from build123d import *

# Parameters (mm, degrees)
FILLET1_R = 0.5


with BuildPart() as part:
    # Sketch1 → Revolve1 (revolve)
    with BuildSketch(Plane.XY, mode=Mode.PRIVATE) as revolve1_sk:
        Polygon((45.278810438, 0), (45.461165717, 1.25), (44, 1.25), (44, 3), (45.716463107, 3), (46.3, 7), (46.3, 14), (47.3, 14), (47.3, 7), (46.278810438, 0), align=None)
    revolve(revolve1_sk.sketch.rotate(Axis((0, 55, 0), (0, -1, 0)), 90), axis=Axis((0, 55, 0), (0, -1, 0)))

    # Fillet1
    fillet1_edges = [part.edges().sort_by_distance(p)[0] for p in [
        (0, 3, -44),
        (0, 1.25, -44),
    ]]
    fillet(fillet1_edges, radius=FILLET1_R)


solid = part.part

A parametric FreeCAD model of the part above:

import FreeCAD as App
import Part
import Sketcher
Q = App.Units.Quantity


def edges_at(feature, points):
    """Names of the edges that pass closest to the given points."""
    edges = feature.Shape.Edges
    near = lambda p: min(range(len(edges)), key=lambda i: edges[i].distToShape(Part.Vertex(*p))[0])
    return sorted({f"Edge{near(p) + 1}" for p in points})

doc = App.newDocument("Part")
body = doc.addObject("PartDesign::Body", "Body")

sketch1 = body.newObject("Sketcher::SketchObject", "Sketch")
sketch1.AttachmentSupport = (doc.getObject("XY_Plane"), [""])
sketch1.MapMode = "FlatFace"
sketch1.addGeometry([
    Part.LineSegment(App.Vector(45.5, 1.2, 0), App.Vector(45.3, 0, 0)),
    Part.LineSegment(App.Vector(45.3, 0, 0), App.Vector(46.3, 0, 0)),
    Part.LineSegment(App.Vector(46.3, 0, 0), App.Vector(47.3, 7, 0)),
    Part.LineSegment(App.Vector(47.3, 7, 0), App.Vector(47.3, 14, 0)),
    Part.LineSegment(App.Vector(47.3, 14, 0), App.Vector(46.3, 14, 0)),
    Part.LineSegment(App.Vector(46.3, 14, 0), App.Vector(46.3, 7, 0)),
    Part.LineSegment(App.Vector(46.3, 7, 0), App.Vector(45.7, 3, 0)),
    Part.LineSegment(App.Vector(45.7, 3, 0), App.Vector(44, 3, 0)),
    Part.LineSegment(App.Vector(44, 3, 0), App.Vector(44, 1.2, 0)),
    Part.LineSegment(App.Vector(44, 1.2, 0), App.Vector(45.5, 1.2, 0)),
], False)
sketch1.addConstraint([
    Sketcher.Constraint("Coincident", 0, 2, 1, 1),
    Sketcher.Constraint("Coincident", 1, 2, 2, 1),
    Sketcher.Constraint("Coincident", 2, 2, 3, 1),
    Sketcher.Constraint("Coincident", 3, 2, 4, 1),
    Sketcher.Constraint("Coincident", 4, 2, 5, 1),
    Sketcher.Constraint("Coincident", 5, 2, 6, 1),
    Sketcher.Constraint("Coincident", 6, 2, 7, 1),
    Sketcher.Constraint("Coincident", 7, 2, 8, 1),
    Sketcher.Constraint("Coincident", 8, 2, 9, 1),
    Sketcher.Constraint("Coincident", 9, 2, 0, 1),
    Sketcher.Constraint("Horizontal", 1),
    Sketcher.Constraint("Vertical", 3),
    Sketcher.Constraint("Horizontal", 4),
    Sketcher.Constraint("Vertical", 5),
    Sketcher.Constraint("Horizontal", 7),
    Sketcher.Constraint("Vertical", 8),
    Sketcher.Constraint("Horizontal", 9),
    Sketcher.Constraint("PointOnObject", 0, 2, -1),
    Sketcher.Constraint("Parallel", 0, 2),
    Sketcher.Constraint("Parallel", 2, 6),
    Sketcher.Constraint("Horizontal", 2, 2, 5, 2),
    Sketcher.Constraint("Equal", 1, 4),
    Sketcher.Constraint("DistanceX", 1, 1, 1, 2, Q("1 mm")),
    Sketcher.Constraint("DistanceY", 3, 1, 3, 2, Q("7 mm")),
    Sketcher.Constraint("DistanceY", -1, 1, 2, 2, Q("7 mm")),
    Sketcher.Constraint("DistanceY", -1, 1, 6, 2, Q("3 mm")),
    Sketcher.Constraint("DistanceX", -1, 1, 7, 2, Q("44 mm")),
    Sketcher.Constraint("Angle", 0, Q("-98.3 deg")),
    Sketcher.Constraint("DistanceY", 8, 2, 8, 1, Q("1.75 mm")),
    Sketcher.Constraint("DistanceX", -1, 1, 2, 2, Q("47.3 mm")),
])
revolution = body.newObject("PartDesign::Revolution", "Revolution")
revolution.Profile = sketch1
revolution.ReferenceAxis = (sketch1, ["V_Axis"])
revolution.Angle = 360
doc.recompute()

fillet = body.newObject("PartDesign::Fillet", "Fillet")
fillet.Base = (revolution, edges_at(revolution, [(0, 3, -44), (0, 1.25, -44)]))
fillet.Radius = 0.5

doc.recompute()
